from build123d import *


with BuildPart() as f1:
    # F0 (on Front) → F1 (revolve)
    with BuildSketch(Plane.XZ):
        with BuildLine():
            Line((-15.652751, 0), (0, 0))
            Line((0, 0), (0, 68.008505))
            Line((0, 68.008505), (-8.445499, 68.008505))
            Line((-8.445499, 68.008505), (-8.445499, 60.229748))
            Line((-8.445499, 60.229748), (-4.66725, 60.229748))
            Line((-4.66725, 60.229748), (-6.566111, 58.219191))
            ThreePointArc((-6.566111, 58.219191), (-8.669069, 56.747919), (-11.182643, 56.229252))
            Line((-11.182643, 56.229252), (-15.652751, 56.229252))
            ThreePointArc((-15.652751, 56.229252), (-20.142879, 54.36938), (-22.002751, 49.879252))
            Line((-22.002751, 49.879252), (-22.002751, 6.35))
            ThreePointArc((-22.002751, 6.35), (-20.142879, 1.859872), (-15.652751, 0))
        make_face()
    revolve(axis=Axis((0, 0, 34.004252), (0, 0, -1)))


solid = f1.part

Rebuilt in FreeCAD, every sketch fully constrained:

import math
import FreeCAD as App
import Part
import Sketcher
Q = App.Units.Quantity

doc = App.newDocument("Part")
body = doc.addObject("PartDesign::Body", "Body")

# Sketch on XZ plane
sketch1 = body.newObject("Sketcher::SketchObject", "Sketch")
sketch1.AttachmentSupport = (doc.getObject("XZ_Plane"), [""])
sketch1.MapMode = "FlatFace"
sketch1.addGeometry([
    Part.LineSegment(App.Vector(-15.652751, 0, 0), App.Vector(0, 0, 0)),  # 0
    Part.LineSegment(App.Vector(0, 0, 0), App.Vector(0, 68.008505, 0)),  # 1
    Part.LineSegment(App.Vector(0, 68.008505, 0), App.Vector(-8.445499, 68.008505, 0)),  # 2
    Part.LineSegment(App.Vector(-8.445499, 68.008505, 0), App.Vector(-8.445499, 60.229748, 0)),  # 3
    Part.LineSegment(App.Vector(-8.445499, 60.229748, 0), App.Vector(-4.66725, 60.229748, 0)),  # 4
    Part.LineSegment(App.Vector(-4.66725, 60.229748, 0), App.Vector(-6.566111, 58.219191, 0)),  # 5
    Part.ArcOfCircle(Part.Circle(App.Vector(-11.182643, 62.579253, 0), App.Vector(0, 0, 1), 6.350001), math.radians(-89.999996), math.radians(-43.363446)),  # 6
    Part.LineSegment(App.Vector(-11.182643, 56.229252, 0), App.Vector(-15.652751, 56.229252, 0)),  # 7
    Part.ArcOfCircle(Part.Circle(App.Vector(-15.652751, 49.879252, 0), App.Vector(0, 0, 1), 6.35), math.radians(90.000002), math.radians(179.999998)),  # 8
    Part.LineSegment(App.Vector(-22.002751, 49.879252, 0), App.Vector(-22.002751, 6.35, 0)),  # 9
    Part.ArcOfCircle(Part.Circle(App.Vector(-15.652751, 6.35, 0), App.Vector(0, 0, 1), 6.35), math.radians(-179.999998), math.radians(-90.000002)),  # 10
], False)
sketch1.addConstraint([
    Sketcher.Constraint("Coincident", 0, 2, 1, 1),
    Sketcher.Constraint("Coincident", 1, 2, 2, 1),
    Sketcher.Constraint("Coincident", 2, 2, 3, 1),
    Sketcher.Constraint("Coincident", 3, 2, 4, 1),
    Sketcher.Constraint("Coincident", 4, 2, 5, 1),
    Sketcher.Constraint("Tangent", 5, 2, 6, 2),
    Sketcher.Constraint("Tangent", 6, 1, 7, 1),
    Sketcher.Constraint("Tangent", 7, 2, 8, 1),
    Sketcher.Constraint("Tangent", 8, 2, 9, 1),
    Sketcher.Constraint("Tangent", 9, 2, 10, 1),
    Sketcher.Constraint("Tangent", 10, 2, 0, 1),
    Sketcher.Constraint("Horizontal", 0),
    Sketcher.Constraint("Vertical", 1),
    Sketcher.Constraint("Horizontal", 2),
    Sketcher.Constraint("Vertical", 3),
    Sketcher.Constraint("Horizontal", 4),
    Sketcher.Constraint("Horizontal", 7),
    Sketcher.Constraint("Vertical", 9),
    Sketcher.Constraint("Coincident", 0, 2, -1, 1),
    Sketcher.Constraint("Equal", 6, 8),
    Sketcher.Constraint("Equal", 8, 10),
    Sketcher.Constraint("Radius", 6, Q("0.25 in")),
    Sketcher.Constraint("DistanceX", 2, 2, 2, 1, Q("0.3325 in")),
    Sketcher.Constraint("DistanceY", 1, 1, 1, 2, Q("2.6775002 in")),
    Sketcher.Constraint("DistanceY", 3, 2, 6, 3, Q("0.0925002 in")),
    Sketcher.Constraint("DistanceX", 8, 3, 4, 2, Q("0.4325 in")),
    Sketcher.Constraint("DistanceX", 0, 1, 0, 2, Q("15.652751 mm")),
    Sketcher.Constraint("DistanceX", 7, 2, 7, 1, Q("4.470108 mm")),
    Sketcher.Constraint("DistanceY", 3, 2, 3, 1, Q("7.778757 mm")),
])
revolution = body.newObject("PartDesign::Revolution", "Revolution")
revolution.Profile = sketch1
revolution.ReferenceAxis = (sketch1, ["V_Axis"])
revolution.Angle = 360

doc.recompute()
